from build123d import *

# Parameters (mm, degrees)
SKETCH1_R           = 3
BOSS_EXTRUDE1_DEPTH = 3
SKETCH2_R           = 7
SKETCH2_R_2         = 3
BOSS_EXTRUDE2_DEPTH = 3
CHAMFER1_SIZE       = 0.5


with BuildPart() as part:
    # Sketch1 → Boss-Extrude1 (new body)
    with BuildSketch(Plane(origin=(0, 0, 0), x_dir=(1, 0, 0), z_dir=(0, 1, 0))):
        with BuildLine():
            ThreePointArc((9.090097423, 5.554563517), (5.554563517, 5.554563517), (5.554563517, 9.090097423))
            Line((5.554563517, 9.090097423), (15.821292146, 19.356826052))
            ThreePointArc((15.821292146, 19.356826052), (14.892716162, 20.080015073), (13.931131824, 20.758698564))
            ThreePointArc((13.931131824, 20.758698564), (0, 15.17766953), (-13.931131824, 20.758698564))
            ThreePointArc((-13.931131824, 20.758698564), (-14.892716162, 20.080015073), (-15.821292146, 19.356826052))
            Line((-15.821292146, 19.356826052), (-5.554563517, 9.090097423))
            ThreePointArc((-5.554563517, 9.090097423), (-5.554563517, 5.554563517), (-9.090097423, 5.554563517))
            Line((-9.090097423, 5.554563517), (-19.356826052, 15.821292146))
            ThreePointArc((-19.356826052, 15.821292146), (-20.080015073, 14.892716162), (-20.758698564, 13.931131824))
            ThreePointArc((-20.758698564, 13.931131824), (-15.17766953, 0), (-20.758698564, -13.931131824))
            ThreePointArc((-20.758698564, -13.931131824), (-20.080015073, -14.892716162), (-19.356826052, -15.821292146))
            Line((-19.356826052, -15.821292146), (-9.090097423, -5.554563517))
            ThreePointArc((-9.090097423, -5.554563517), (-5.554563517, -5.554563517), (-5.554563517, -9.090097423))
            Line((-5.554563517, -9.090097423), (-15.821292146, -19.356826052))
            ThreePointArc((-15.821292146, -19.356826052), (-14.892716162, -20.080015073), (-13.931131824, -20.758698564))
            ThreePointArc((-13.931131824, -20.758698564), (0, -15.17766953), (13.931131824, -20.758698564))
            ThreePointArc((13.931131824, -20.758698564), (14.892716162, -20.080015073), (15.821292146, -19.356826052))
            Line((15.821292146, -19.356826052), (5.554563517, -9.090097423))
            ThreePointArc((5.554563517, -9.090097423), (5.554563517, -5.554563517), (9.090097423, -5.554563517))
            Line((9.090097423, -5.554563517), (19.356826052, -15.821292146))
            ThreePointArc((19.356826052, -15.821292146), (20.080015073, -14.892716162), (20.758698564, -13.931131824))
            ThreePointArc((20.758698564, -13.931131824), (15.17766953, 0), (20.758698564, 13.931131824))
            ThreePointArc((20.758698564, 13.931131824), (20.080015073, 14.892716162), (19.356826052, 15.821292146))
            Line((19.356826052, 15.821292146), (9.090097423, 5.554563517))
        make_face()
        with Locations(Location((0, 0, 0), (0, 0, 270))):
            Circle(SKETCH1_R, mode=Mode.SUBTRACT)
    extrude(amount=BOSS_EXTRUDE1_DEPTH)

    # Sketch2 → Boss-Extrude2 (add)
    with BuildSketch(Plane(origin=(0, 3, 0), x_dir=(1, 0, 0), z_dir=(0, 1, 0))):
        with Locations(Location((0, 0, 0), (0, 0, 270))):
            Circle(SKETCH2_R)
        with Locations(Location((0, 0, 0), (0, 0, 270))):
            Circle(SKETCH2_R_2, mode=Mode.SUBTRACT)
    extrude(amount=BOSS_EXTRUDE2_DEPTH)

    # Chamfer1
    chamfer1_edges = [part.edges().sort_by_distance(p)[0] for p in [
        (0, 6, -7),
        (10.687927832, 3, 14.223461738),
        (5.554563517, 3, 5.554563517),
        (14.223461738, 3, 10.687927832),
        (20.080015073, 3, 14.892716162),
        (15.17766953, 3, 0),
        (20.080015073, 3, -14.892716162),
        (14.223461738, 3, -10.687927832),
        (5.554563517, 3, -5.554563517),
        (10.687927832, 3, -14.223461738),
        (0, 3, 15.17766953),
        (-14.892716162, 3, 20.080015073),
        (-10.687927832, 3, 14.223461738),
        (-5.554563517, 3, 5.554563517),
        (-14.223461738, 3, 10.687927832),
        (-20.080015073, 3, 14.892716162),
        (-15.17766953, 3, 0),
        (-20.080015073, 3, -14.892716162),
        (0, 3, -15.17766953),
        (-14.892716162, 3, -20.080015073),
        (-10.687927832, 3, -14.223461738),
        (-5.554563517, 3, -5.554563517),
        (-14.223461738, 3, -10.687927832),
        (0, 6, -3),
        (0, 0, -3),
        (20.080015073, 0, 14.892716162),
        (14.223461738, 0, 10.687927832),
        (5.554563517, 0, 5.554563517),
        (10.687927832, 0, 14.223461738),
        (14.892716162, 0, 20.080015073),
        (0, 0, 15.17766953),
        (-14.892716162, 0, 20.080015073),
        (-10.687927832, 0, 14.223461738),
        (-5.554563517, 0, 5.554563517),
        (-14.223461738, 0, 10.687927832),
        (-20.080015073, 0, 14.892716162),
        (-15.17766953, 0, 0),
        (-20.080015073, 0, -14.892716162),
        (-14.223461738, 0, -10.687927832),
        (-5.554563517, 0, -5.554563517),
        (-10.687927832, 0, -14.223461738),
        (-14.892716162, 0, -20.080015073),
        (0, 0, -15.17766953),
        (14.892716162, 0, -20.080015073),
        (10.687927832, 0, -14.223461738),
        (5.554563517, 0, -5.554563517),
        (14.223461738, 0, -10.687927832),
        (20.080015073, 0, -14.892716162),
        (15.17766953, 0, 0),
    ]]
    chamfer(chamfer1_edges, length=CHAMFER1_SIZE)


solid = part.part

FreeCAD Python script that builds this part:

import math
import FreeCAD as App
import Part
import Sketcher

V = App.Vector
Q = App.Units.Quantity


def edges_at(feature, points):
    """Names of the edges that pass closest to the given points."""
    edges = feature.Shape.Edges
    near = lambda p: min(range(len(edges)), key=lambda i: edges[i].distToShape(Part.Vertex(*p))[0])
    return sorted({f"Edge{near(p) + 1}" for p in points})

doc = App.newDocument("Part")
body = doc.addObject("PartDesign::Body", "Body")

sketch1 = body.newObject("Sketcher::SketchObject", "Sketch")
sketch1.AttachmentSupport = (doc.getObject("XZ_Plane"), [""])
sketch1.MapMode = "FlatFace"
sketch1.addGeometry(Part.ArcOfCircle(Part.Circle(V(7.3, -7.3, 0), V(0, 0, 1), 2.5), math.radians(45), math.radians(225)), False)
sketch1.addGeometry(Part.LineSegment(V(5.6, -9.1, 0), V(15.8, -19.4, 0)), False)
sketch1.addGeometry(Part.ArcOfCircle(Part.Circle(V(0, 0, 0), V(0, 0, 1), 25), math.radians(-56.13), math.radians(-50.74)), False)
sketch1.addGeometry(Part.ArcOfCircle(Part.Circle(V(0, -35.4, 0), V(0, 0, 1), 20.2), math.radians(46), math.radians(134)), False)
sketch1.addGeometry(Part.ArcOfCircle(Part.Circle(V(0, 0, 0), V(0, 0, 1), 25), math.radians(-129.26), math.radians(-123.87)), False)
sketch1.addGeometry(Part.LineSegment(V(-15.8, -19.4, 0), V(-5.6, -9.1, 0)), False)
sketch1.addGeometry(Part.ArcOfCircle(Part.Circle(V(-7.3, -7.3, 0), V(0, 0, 1), 2.5), math.radians(-45), math.radians(135)), False)
sketch1.addGeometry(Part.LineSegment(V(-9.1, -5.6, 0), V(-19.4, -15.8, 0)), False)
sketch1.addGeometry(Part.ArcOfCircle(Part.Circle(V(0, 0, 0), V(0, 0, 1), 25), math.radians(-146.13), math.radians(-140.74)), False)
sketch1.addGeometry(Part.ArcOfCircle(Part.Circle(V(-35.4, 0, 0), V(0, 0, 1), 20.2), math.radians(-44), math.radians(44)), False)
sketch1.addGeometry(Part.ArcOfCircle(Part.Circle(V(0, 0, 0), V(0, 0, 1), 25), math.radians(140.74), math.radians(146.13)), False)
sketch1.addGeometry(Part.LineSegment(V(-19.4, 15.8, 0), V(-9.1, 5.6, 0)), False)
sketch1.addGeometry(Part.ArcOfCircle(Part.Circle(V(-7.3, 7.3, 0), V(0, 0, 1), 2.5), math.radians(-135), math.radians(45)), False)
sketch1.addGeometry(Part.LineSegment(V(-5.6, 9.1, 0), V(-15.8, 19.4, 0)), False)
sketch1.addGeometry(Part.ArcOfCircle(Part.Circle(V(0, 0, 0), V(0, 0, 1), 25), math.radians(123.87), math.radians(129.26)), False)
sketch1.addGeometry(Part.ArcOfCircle(Part.Circle(V(0, 35.4, 0), V(0, 0, 1), 20.2), math.radians(-134), math.radians(-46)), False)
sketch1.addGeometry(Part.ArcOfCircle(Part.Circle(V(0, 0, 0), V(0, 0, 1), 25), math.radians(50.74), math.radians(56.13)), False)
sketch1.addGeometry(Part.LineSegment(V(15.8, 19.4, 0), V(5.6, 9.1, 0)), False)
sketch1.addGeometry(Part.ArcOfCircle(Part.Circle(V(7.3, 7.3, 0), V(0, 0, 1), 2.5), math.radians(135), math.radians(315)), False)
sketch1.addGeometry(Part.LineSegment(V(9.1, 5.6, 0), V(19.4, 15.8, 0)), False)
sketch1.addGeometry(Part.ArcOfCircle(Part.Circle(V(0, 0, 0), V(0, 0, 1), 25), math.radians(33.87), math.radians(39.26)), False)
sketch1.addGeometry(Part.ArcOfCircle(Part.Circle(V(35.4, 0, 0), V(0, 0, 1), 20.2), math.radians(136), math.radians(224)), False)
sketch1.addGeometry(Part.ArcOfCircle(Part.Circle(V(0, 0, 0), V(0, 0, 1), 25), math.radians(-39.26), math.radians(-33.87)), False)
sketch1.addGeometry(Part.LineSegment(V(19.4, -15.8, 0), V(9.1, -5.6, 0)), False)
sketch1.addGeometry(Part.Circle(V(0, 0, 0), V(0, 0, 1), 3), False)
sketch1.addConstraint(Sketcher.Constraint("Tangent", 0, 2, 1, 1))
sketch1.addConstraint(Sketcher.Constraint("Coincident", 1, 2, 2, 2))
sketch1.addConstraint(Sketcher.Constraint("Coincident", 2, 1, 3, 1))
sketch1.addConstraint(Sketcher.Constraint("Coincident", 3, 2, 4, 2))
sketch1.addConstraint(Sketcher.Constraint("Coincident", 4, 1, 5, 1))
sketch1.addConstraint(Sketcher.Constraint("Tangent", 5, 2, 6, 1))
sketch1.addConstraint(Sketcher.Constraint("Tangent", 6, 2, 7, 1))
sketch1.addConstraint(Sketcher.Constraint("Coincident", 7, 2, 8, 2))
sketch1.addConstraint(Sketcher.Constraint("Coincident", 8, 1, 9, 1))
sketch1.addConstraint(Sketcher.Constraint("Coincident", 9, 2, 10, 2))
sketch1.addConstraint(Sketcher.Constraint("Coincident", 10, 1, 11, 1))
sketch1.addConstraint(Sketcher.Constraint("Tangent", 11, 2, 12, 1))
sketch1.addConstraint(Sketcher.Constraint("Tangent", 12, 2, 13, 1))
sketch1.addConstraint(Sketcher.Constraint("Coincident", 13, 2, 14, 2))
sketch1.addConstraint(Sketcher.Constraint("Coincident", 14, 1, 15, 1))
sketch1.addConstraint(Sketcher.Constraint("Coincident", 15, 2, 16, 2))
sketch1.addConstraint(Sketcher.Constraint("Coincident", 16, 1, 17, 1))
sketch1.addConstraint(Sketcher.Constraint("Tangent", 17, 2, 18, 1))
sketch1.addConstraint(Sketcher.Constraint("Tangent", 18, 2, 19, 1))
sketch1.addConstraint(Sketcher.Constraint("Coincident", 19, 2, 20, 2))
sketch1.addConstraint(Sketcher.Constraint("Coincident", 20, 1, 21, 1))
sketch1.addConstraint(Sketcher.Constraint("Coincident", 21, 2, 22, 2))
sketch1.addConstraint(Sketcher.Constraint("Coincident", 22, 1, 23, 1))
sketch1.addConstraint(Sketcher.Constraint("Tangent", 23, 2, 0, 1))
sketch1.addConstraint(Sketcher.Constraint("Coincident", 2, 3, -1, 1))
sketch1.addConstraint(Sketcher.Constraint("Coincident", 4, 3, -1, 1))
sketch1.addConstraint(Sketcher.Constraint("Coincident", 8, 3, -1, 1))
sketch1.addConstraint(Sketcher.Constraint("Coincident", 10, 3, -1, 1))
sketch1.addConstraint(Sketcher.Constraint("Coincident", 14, 3, -1, 1))
sketch1.addConstraint(Sketcher.Constraint("Coincident", 16, 3, -1, 1))
sketch1.addConstraint(Sketcher.Constraint("Coincident", 20, 3, -1, 1))
sketch1.addConstraint(Sketcher.Constraint("Coincident", 22, 3, -1, 1))
sketch1.addConstraint(Sketcher.Constraint("Coincident", 24, 3, -1, 1))
sketch1.addConstraint(Sketcher.Constraint("Equal", 2, 4))
sketch1.addConstraint(Sketcher.Constraint("Equal", 0, 6))
sketch1.addConstraint(Sketcher.Constraint("Equal", 4, 8))
sketch1.addConstraint(Sketcher.Constraint("Equal", 3, 9))
sketch1.addConstraint(Sketcher.Constraint("Equal", 8, 10))
sketch1.addConstraint(Sketcher.Constraint("Equal", 6, 12))
sketch1.addConstraint(Sketcher.Constraint("Equal", 10, 14))
sketch1.addConstraint(Sketcher.Constraint("Equal", 9, 15))
sketch1.addConstraint(Sketcher.Constraint("Equal", 14, 16))
sketch1.addConstraint(Sketcher.Constraint("Equal", 12, 18))
sketch1.addConstraint(Sketcher.Constraint("Equal", 16, 20))
sketch1.addConstraint(Sketcher.Constraint("Equal", 15, 21))
sketch1.addConstraint(Sketcher.Constraint("Equal", 20, 22))
sketch1.addConstraint(Sketcher.Constraint("Symmetric", 0, 3, 12, 3, -1, 1))
sketch1.addConstraint(Sketcher.Constraint("Symmetric", 3, 3, 15, 3, -1, 1))
sketch1.addConstraint(Sketcher.Constraint("Symmetric", 6, 3, 18, 3, -1, 1))
sketch1.addConstraint(Sketcher.Constraint("Symmetric", 9, 3, 21, 3, -1, 1))
sketch1.addConstraint(Sketcher.Constraint("Symmetric", 0, 3, 6, 3, -2))
sketch1.addConstraint(Sketcher.Constraint("PointOnObject", 3, 3, -2))
sketch1.addConstraint(Sketcher.Constraint("PointOnObject", 9, 3, -1))
sketch1.addConstraint(Sketcher.Constraint("Perpendicular", 1, 5))
sketch1.addConstraint(Sketcher.Constraint("Parallel", 5, 7))
sketch1.addConstraint(Sketcher.Constraint("Perpendicular", 7, 11))
sketch1.addConstraint(Sketcher.Constraint("Parallel", 11, 13))
sketch1.addConstraint(Sketcher.Constraint("Perpendicular", 13, 17))
sketch1.addConstraint(Sketcher.Constraint("Parallel", 17, 19))
sketch1.addConstraint(Sketcher.Constraint("Perpendicular", 19, 23))
sketch1.addConstraint(Sketcher.Constraint("Horizontal", 1, 2, 4, 1))
sketch1.addConstraint(Sketcher.Constraint("Equal", 5, 7))
sketch1.addConstraint(Sketcher.Constraint("Diameter", 24, Q("6 mm")))
sketch1.addConstraint(Sketcher.Constraint("Radius", 2, Q("24.999999 mm")))
sketch1.addConstraint(Sketcher.Constraint("Radius", 0, Q("2.5 mm")))
sketch1.addConstraint(Sketcher.Constraint("Radius", 3, Q("20.17767 mm")))
sketch1.addConstraint(Sketcher.Constraint("DistanceY", 2, 1, -1, 1, Q("20.758699 mm")))
sketch1.addConstraint(Sketcher.Constraint("DistanceX", 8, 1, -1, 1, Q("20.758699 mm")))
sketch1.addConstraint(Sketcher.Constraint("DistanceY", 2, 1, 0, 2, Q("11.668601 mm")))
pad1 = body.newObject("PartDesign::Pad", "Pad")
pad1.Profile = sketch1
pad1.Length = 3
pad1.Reversed = True

sketch2 = body.newObject("Sketcher::SketchObject", "Sketch001")
sketch2.AttachmentSupport = (doc.getObject("XZ_Plane"), [""])
sketch2.MapMode = "FlatFace"
sketch2.AttachmentOffset = App.Placement(V(0, 0, -3), App.Rotation())
sketch2.addGeometry(Part.Circle(V(0, 0, 0), V(0, 0, 1), 7), False)
sketch2.addGeometry(Part.Circle(V(0, 0, 0), V(0, 0, 1), 3), False)
sketch2.addConstraint(Sketcher.Constraint("Coincident", 0, 3, -1, 1))
sketch2.addConstraint(Sketcher.Constraint("Coincident", 1, 3, -1, 1))
sketch2.addConstraint(Sketcher.Constraint("Diameter", 0, Q("14 mm")))
sketch2.addConstraint(Sketcher.Constraint("Diameter", 1, Q("6 mm")))
pad2 = body.newObject("PartDesign::Pad", "Pad001")
pad2.Profile = sketch2
pad2.Length = 3
pad2.Reversed = True
doc.recompute()

chamfer = body.newObject("PartDesign::Chamfer", "Chamfer")
chamfer.Base = (pad2, edges_at(pad2, [
    (0, 6, -7),
    (10.688, 3, 14.223),
    (5.555, 3, 5.555),
    (14.223, 3, 10.688),
    (20.08, 3, 14.893),
    (15.178, 3, 0),
    (20.08, 3, -14.893),
    (14.223, 3, -10.688),
    (5.555, 3, -5.555),
    (10.688, 3, -14.223),
    (0, 3, 15.178),
    (-14.893, 3, 20.08),
    (-10.688, 3, 14.223),
    (-5.555, 3, 5.555),
    (-14.223, 3, 10.688),
    (-20.08, 3, 14.893),
    (-15.178, 3, 0),
    (-20.08, 3, -14.893),
    (0, 3, -15.178),
    (-14.893, 3, -20.08),
    (-10.688, 3, -14.223),
    (-5.555, 3, -5.555),
    (-14.223, 3, -10.688),
    (0, 6, -3),
    (0, 0, -3),
    (20.08, 0, 14.893),
    (14.223, 0, 10.688),
    (5.555, 0, 5.555),
    (10.688, 0, 14.223),
    (14.893, 0, 20.08),
    (0, 0, 15.178),
    (-14.893, 0, 20.08),
    (-10.688, 0, 14.223),
    (-5.555, 0, 5.555),
    (-14.223, 0, 10.688),
    (-20.08, 0, 14.893),
    (-15.178, 0, 0),
    (-20.08, 0, -14.893),
    (-14.223, 0, -10.688),
    (-5.555, 0, -5.555),
    (-10.688, 0, -14.223),
    (-14.893, 0, -20.08),
    (0, 0, -15.178),
    (14.893, 0, -20.08),
    (10.688, 0, -14.223),
    (5.555, 0, -5.555),
    (14.223, 0, -10.688),
    (20.08, 0, -14.893),
    (15.178, 0, 0),
]))
chamfer.Size = 0.5

doc.recompute()
